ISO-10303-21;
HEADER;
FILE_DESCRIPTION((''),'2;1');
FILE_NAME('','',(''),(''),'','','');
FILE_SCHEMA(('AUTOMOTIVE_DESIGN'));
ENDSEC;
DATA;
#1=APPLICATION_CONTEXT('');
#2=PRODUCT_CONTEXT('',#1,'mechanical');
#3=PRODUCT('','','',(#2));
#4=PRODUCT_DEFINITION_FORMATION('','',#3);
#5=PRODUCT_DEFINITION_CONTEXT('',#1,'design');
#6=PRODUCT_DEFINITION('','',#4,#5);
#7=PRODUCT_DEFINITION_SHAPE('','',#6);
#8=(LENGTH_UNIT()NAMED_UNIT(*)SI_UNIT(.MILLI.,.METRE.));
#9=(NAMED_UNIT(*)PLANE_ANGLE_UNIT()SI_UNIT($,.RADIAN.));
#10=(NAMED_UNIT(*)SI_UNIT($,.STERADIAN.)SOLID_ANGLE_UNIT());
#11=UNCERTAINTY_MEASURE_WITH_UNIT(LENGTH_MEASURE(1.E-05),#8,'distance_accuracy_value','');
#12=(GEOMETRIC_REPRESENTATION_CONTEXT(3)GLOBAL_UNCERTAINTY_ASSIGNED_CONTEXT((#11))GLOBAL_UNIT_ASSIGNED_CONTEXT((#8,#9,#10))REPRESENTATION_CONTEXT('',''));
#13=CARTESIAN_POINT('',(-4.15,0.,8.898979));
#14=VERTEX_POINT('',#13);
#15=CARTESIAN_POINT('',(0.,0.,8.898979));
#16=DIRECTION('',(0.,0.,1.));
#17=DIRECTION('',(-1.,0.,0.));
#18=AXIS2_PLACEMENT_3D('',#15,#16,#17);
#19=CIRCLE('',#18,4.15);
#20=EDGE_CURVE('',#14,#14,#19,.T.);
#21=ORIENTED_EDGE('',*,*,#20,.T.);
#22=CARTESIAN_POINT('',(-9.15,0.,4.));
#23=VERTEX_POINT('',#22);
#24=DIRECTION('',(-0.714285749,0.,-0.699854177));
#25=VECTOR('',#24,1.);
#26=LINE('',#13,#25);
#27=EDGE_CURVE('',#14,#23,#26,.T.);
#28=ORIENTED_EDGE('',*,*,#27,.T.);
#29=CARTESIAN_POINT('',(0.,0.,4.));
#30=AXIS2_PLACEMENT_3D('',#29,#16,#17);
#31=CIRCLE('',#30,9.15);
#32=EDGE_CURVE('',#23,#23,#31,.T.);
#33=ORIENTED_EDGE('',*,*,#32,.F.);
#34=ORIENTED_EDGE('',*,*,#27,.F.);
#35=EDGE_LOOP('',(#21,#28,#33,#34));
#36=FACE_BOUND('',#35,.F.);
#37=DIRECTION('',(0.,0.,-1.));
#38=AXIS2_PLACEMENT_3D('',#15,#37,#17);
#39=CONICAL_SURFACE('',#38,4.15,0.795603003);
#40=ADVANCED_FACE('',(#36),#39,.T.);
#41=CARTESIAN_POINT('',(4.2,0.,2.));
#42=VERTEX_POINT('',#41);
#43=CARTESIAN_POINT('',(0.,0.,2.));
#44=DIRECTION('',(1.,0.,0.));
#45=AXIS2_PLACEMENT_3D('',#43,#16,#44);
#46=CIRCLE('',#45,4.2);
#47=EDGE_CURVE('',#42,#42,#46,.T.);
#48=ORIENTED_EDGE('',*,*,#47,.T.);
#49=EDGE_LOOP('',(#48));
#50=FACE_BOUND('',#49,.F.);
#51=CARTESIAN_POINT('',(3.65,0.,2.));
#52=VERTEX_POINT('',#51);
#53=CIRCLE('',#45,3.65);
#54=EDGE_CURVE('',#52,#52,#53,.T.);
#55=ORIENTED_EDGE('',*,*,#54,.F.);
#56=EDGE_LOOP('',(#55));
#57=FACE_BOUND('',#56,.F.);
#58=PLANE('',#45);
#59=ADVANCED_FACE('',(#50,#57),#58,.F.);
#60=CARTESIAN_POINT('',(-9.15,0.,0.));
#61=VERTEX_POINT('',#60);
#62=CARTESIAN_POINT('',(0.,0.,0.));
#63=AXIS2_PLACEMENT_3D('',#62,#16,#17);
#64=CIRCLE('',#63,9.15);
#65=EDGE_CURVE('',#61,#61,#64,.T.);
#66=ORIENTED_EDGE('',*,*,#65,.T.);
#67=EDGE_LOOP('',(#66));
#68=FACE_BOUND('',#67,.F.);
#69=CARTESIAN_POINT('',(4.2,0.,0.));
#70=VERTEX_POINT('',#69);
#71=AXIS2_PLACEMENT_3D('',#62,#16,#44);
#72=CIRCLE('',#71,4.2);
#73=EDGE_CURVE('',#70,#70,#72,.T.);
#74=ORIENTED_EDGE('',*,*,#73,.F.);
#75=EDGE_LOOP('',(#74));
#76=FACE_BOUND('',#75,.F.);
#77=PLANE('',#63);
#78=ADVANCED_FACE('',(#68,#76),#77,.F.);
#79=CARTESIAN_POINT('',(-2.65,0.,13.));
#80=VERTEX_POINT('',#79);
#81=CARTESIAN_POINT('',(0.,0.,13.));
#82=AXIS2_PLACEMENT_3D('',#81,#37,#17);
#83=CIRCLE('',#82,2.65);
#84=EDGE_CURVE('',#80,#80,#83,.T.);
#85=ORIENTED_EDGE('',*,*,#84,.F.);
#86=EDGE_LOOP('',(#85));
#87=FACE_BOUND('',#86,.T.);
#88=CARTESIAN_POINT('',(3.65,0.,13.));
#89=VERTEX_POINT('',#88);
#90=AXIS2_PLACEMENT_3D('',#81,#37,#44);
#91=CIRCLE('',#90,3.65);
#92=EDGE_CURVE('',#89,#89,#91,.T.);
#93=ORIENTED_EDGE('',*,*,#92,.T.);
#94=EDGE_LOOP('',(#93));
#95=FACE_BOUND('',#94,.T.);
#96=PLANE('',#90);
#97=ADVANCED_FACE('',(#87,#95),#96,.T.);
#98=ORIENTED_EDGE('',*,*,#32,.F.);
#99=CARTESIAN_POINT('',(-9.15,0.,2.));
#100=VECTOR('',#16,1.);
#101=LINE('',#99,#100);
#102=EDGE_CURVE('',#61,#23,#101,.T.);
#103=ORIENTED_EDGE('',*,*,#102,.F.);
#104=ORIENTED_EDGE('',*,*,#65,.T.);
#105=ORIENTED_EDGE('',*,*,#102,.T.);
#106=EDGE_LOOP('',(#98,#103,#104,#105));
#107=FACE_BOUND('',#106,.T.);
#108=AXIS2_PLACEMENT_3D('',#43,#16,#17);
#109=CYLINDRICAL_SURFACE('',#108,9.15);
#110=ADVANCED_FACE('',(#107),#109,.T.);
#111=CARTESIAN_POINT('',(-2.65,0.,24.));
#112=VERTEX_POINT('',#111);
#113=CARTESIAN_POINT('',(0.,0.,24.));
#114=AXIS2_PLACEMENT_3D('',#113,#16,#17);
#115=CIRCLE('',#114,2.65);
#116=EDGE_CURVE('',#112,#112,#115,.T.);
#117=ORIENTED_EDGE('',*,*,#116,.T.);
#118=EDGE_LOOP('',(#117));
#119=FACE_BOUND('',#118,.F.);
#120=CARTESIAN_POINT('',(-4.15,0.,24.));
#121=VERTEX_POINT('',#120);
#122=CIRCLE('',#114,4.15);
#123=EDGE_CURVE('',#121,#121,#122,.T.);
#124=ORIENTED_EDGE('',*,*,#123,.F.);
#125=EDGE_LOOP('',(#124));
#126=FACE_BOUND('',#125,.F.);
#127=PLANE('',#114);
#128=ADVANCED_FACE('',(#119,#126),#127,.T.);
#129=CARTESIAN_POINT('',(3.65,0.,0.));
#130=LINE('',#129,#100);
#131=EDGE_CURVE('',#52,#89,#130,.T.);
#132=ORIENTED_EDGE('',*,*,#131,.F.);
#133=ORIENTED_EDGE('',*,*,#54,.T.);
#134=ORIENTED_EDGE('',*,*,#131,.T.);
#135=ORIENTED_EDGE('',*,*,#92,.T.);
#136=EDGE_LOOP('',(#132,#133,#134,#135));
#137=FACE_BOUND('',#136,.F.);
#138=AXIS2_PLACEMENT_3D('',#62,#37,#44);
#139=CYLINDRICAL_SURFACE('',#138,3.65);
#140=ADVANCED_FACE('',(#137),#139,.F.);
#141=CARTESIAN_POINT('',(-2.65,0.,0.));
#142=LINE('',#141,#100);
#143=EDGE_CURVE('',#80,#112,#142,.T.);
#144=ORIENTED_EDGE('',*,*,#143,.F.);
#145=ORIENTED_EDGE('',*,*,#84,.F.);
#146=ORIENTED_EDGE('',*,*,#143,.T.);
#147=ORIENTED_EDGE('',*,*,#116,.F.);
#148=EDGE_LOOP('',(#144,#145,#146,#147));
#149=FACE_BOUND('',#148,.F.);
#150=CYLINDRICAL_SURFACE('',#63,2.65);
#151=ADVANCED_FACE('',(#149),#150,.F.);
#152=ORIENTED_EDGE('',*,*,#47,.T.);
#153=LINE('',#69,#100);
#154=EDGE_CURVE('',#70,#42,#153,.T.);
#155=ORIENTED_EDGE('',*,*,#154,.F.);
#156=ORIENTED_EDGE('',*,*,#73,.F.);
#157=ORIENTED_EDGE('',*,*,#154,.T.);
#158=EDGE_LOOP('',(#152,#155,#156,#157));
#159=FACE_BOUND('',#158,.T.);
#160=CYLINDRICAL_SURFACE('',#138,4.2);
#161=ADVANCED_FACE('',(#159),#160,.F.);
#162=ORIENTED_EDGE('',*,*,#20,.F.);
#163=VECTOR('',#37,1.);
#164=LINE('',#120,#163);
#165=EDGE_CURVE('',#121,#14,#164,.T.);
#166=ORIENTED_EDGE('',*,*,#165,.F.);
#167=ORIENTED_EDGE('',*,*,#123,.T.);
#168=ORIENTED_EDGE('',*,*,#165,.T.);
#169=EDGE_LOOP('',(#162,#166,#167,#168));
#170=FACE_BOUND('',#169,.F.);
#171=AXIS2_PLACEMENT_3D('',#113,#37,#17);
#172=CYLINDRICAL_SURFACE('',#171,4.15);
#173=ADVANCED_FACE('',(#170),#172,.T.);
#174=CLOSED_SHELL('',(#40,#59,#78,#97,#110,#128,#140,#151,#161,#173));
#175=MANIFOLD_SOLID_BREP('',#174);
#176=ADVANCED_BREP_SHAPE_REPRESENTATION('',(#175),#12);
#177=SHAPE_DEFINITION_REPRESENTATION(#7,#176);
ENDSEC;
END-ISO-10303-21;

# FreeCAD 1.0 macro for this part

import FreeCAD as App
import Part
import Sketcher
from FreeCAD import Vector


def add_polygon(sketch, points):
    """Adds a closed chain of lines whose ends are joined by coincident constraints."""
    first, n = sketch.GeometryCount, len(points)
    for a, b in zip(points, points[1:] + points[:1]):
        sketch.addGeometry(Part.LineSegment(App.Vector(*a, 0), App.Vector(*b, 0)), False)
    for i in range(n):
        sketch.addConstraint(Sketcher.Constraint("Coincident", first + i, 2, first + (i + 1) % n, 1))

doc = App.newDocument("Part")
params = doc.addObject("Spreadsheet::Sheet", "Params")
for row, (alias, value) in enumerate([
    ("sketch1_height", "24 mm"),
    ("sketch1_height2", "4 mm"),
    ("sketch1_length", "7 mm"),
    ("sketch1_width", "1.5 mm"),
    ("sketch1_width2", "6.5 mm"),
    ("revolution_angle", "360 deg"),
    ("sketch2_diameter", "8.4 mm"),
    ("sketch2_diameter2", "7.3 mm"),
    ("pocket1_length", "2 mm"),
    ("sketch3_diameter", "7.3 mm"),
    ("sketch3_diameter2", "5.3 mm"),
    ("pocket2_length", "13 mm"),
], start=1):
    params.set(f"A{row}", alias)
    params.set(f"B{row}", "=" + value)
    params.setAlias(f"B{row}", alias)

body = doc.addObject("PartDesign::Body", "Body")

sketch1 = doc.addObject("Sketcher::SketchObject", "Sketch")
body.addObject(sketch1)
sketch1.AttachmentSupport = (doc.XZ_Plane, [""])
sketch1.MapMode = "FlatFace"
add_polygon(sketch1, [(-2.65, 0), (-2.65, 24), (-4.15, 24), (-4.15, 8.898979), (-9.15, 4), (-9.15, 0)])
sketch1.addConstraint(Sketcher.Constraint("Vertical", 0))
sketch1.addConstraint(Sketcher.Constraint("Horizontal", 1))
sketch1.addConstraint(Sketcher.Constraint("Vertical", 2))
sketch1.addConstraint(Sketcher.Constraint("Vertical", 4))
sketch1.addConstraint(Sketcher.Constraint("Horizontal", 5))
sketch1.addConstraint(Sketcher.Constraint("PointOnObject", 4, 2, -1))
sketch1.addConstraint(Sketcher.Constraint("DistanceY", 0, 1, 0, 2, 24.0))
sketch1.addConstraint(Sketcher.Constraint("DistanceY", 4, 2, 4, 1, 4.0))
sketch1.addConstraint(Sketcher.Constraint("Distance", 3, 7.0))
sketch1.addConstraint(Sketcher.Constraint("DistanceX", 1, 2, 1, 1, 1.5))
sketch1.addConstraint(Sketcher.Constraint("DistanceX", 5, 1, 5, 2, 6.5))
sketch1.addConstraint(Sketcher.Constraint("DistanceX", 0, 2, -1, 1, 2.65))
sketch1.setExpression("Constraints[12]", "Params.sketch1_height")
sketch1.setExpression("Constraints[13]", "Params.sketch1_height2")
sketch1.setExpression("Constraints[14]", "Params.sketch1_length")
sketch1.setExpression("Constraints[15]", "Params.sketch1_width")
sketch1.setExpression("Constraints[16]", "Params.sketch1_width2")
revolution = doc.addObject("PartDesign::Revolution", "Revolution")
body.addObject(revolution)
revolution.Profile = sketch1
revolution.ReferenceAxis = (sketch1, ["V_Axis"])
revolution.setExpression("Angle", "Params.revolution_angle")

sketch2 = doc.addObject("Sketcher::SketchObject", "Sketch001")
body.addObject(sketch2)
sketch2.AttachmentSupport = (doc.XY_Plane, [""])
sketch2.MapMode = "FlatFace"
sketch2.addGeometry(Part.Circle(Vector(0, 0, 0), Vector(0, 0, 1), 4.2), False)
sketch2.addGeometry(Part.Circle(Vector(0, 0, 0), Vector(0, 0, 1), 3.65), False)
sketch2.addConstraint(Sketcher.Constraint("Coincident", 0, 3, -1, 1))
sketch2.addConstraint(Sketcher.Constraint("Coincident", 1, 3, -1, 1))
sketch2.addConstraint(Sketcher.Constraint("Diameter", 0, 8.4))
sketch2.addConstraint(Sketcher.Constraint("Diameter", 1, 7.3))
sketch2.setExpression("Constraints[2]", "Params.sketch2_diameter")
sketch2.setExpression("Constraints[3]", "Params.sketch2_diameter2")
pocket1 = doc.addObject("PartDesign::Pocket", "Pocket")
body.addObject(pocket1)
pocket1.Profile = sketch2
pocket1.setExpression("Length", "Params.pocket1_length")
pocket1.Reversed = True

sketch3 = doc.addObject("Sketcher::SketchObject", "Sketch002")
body.addObject(sketch3)
sketch3.AttachmentSupport = (doc.XY_Plane, [""])
sketch3.MapMode = "FlatFace"
sketch3.addGeometry(Part.Circle(Vector(0, 0, 0), Vector(0, 0, 1), 3.65), False)
sketch3.addGeometry(Part.Circle(Vector(0, 0, 0), Vector(0, 0, 1), 2.65), False)
sketch3.addConstraint(Sketcher.Constraint("Coincident", 0, 3, -1, 1))
sketch3.addConstraint(Sketcher.Constraint("Coincident", 1, 3, -1, 1))
sketch3.addConstraint(Sketcher.Constraint("Diameter", 0, 7.3))
sketch3.addConstraint(Sketcher.Constraint("Diameter", 1, 5.3))
sketch3.setExpression("Constraints[2]", "Params.sketch3_diameter")
sketch3.setExpression("Constraints[3]", "Params.sketch3_diameter2")
pocket2 = doc.addObject("PartDesign::Pocket", "Pocket001")
body.addObject(pocket2)
pocket2.Profile = sketch3
pocket2.setExpression("Length", "Params.pocket2_length")
pocket2.Reversed = True

doc.recompute()
